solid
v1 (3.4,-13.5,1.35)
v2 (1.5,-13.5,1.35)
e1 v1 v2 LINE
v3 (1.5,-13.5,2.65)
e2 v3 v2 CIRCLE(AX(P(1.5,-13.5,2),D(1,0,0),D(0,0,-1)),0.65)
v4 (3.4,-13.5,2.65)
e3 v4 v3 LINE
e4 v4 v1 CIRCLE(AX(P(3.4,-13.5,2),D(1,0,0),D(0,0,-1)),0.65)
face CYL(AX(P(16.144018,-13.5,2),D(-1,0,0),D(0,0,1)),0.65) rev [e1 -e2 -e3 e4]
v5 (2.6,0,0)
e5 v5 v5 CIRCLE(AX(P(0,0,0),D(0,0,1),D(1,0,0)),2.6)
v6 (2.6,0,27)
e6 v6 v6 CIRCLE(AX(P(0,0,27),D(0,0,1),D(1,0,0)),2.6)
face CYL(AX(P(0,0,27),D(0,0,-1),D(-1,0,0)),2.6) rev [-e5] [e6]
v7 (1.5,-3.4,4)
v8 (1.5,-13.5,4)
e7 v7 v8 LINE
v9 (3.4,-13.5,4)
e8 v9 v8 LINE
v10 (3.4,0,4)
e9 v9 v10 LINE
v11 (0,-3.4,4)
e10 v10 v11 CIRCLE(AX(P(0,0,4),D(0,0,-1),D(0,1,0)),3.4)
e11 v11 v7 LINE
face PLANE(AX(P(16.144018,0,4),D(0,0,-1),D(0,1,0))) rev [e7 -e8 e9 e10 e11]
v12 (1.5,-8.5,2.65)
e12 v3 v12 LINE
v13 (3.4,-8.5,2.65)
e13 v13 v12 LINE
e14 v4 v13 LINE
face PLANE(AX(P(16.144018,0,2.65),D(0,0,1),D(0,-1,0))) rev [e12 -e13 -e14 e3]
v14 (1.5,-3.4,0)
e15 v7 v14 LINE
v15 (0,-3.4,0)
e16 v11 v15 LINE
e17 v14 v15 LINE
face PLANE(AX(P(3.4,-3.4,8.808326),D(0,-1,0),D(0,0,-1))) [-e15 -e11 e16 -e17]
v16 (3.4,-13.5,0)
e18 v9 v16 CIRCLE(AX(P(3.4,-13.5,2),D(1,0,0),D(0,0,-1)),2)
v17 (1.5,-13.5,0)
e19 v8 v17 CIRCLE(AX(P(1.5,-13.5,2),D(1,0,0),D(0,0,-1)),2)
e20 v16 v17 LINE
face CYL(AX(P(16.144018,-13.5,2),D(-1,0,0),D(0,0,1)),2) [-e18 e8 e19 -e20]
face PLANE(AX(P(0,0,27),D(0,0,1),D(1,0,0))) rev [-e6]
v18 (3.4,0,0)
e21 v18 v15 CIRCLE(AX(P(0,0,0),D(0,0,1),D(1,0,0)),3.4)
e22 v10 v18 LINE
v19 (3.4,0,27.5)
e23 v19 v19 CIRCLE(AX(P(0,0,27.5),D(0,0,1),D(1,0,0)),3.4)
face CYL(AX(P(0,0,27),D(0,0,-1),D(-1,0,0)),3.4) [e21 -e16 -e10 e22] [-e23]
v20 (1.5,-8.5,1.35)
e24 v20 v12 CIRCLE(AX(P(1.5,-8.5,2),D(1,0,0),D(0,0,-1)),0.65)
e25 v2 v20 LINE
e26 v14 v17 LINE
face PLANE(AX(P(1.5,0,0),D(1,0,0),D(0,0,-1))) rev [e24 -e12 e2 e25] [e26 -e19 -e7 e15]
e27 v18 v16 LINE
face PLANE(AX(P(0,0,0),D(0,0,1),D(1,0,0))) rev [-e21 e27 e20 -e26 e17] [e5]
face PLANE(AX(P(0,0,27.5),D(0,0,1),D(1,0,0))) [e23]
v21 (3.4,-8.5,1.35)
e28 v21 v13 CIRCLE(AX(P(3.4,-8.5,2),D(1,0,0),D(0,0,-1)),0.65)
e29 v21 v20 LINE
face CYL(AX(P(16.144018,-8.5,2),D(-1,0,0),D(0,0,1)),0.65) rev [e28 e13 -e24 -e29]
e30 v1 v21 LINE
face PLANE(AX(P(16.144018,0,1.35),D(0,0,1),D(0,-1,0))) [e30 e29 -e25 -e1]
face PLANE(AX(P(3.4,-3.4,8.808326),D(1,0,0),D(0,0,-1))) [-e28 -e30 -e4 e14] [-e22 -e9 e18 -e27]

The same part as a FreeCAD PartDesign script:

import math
import FreeCAD as App
import Part
import Sketcher
from FreeCAD import Vector
Q = App.Units.Quantity

doc = App.newDocument("Part")
params = doc.addObject("Spreadsheet::Sheet", "Params")
for row, (alias, value) in enumerate([
    ("sketch1_diameter", "6.8 mm"),
    ("sketch1_diameter2", "5.2 mm"),
    ("pad1_length", "27 mm"),
    ("sketch2_diameter", "6.8 mm"),
    ("pad2_length", "0.5 mm"),
    ("sketch3_radius", "2 mm"),
    ("sketch3_width", "5 mm"),
    ("sketch3_radius2", "0.65 mm"),
    ("sketch3_width2", "10.1 mm"),
    ("pad3_length", "1.9 mm"),
    ("sketch4_radius", "3.4 mm"),
    ("pad4_length", "4 mm"),
], start=1):
    params.set(f"A{row}", alias)
    params.set(f"B{row}", "=" + value)
    params.setAlias(f"B{row}", alias)

body = doc.addObject("PartDesign::Body", "Body")

# Sketch on XY plane
sketch1 = body.newObject("Sketcher::SketchObject", "Sketch")
sketch1.AttachmentSupport = (doc.getObject("XY_Plane"), [""])
sketch1.MapMode = "FlatFace"
sketch1.addGeometry([
    Part.Circle(Vector(0, 0, 0), Vector(0, 0, 1), 3.4),
    Part.Circle(Vector(0, 0, 0), Vector(0, 0, 1), 2.6),
], False)
sketch1.addConstraint([
    Sketcher.Constraint("Coincident", 0, 3, -1, 1),
    Sketcher.Constraint("Coincident", 1, 3, -1, 1),
    Sketcher.Constraint("Diameter", 0, Q("6.8 mm")),
    Sketcher.Constraint("Diameter", 1, Q("5.2 mm")),
])
sketch1.setExpression("Constraints[2]", "Params.sketch1_diameter")
sketch1.setExpression("Constraints[3]", "Params.sketch1_diameter2")
pad1 = body.newObject("PartDesign::Pad", "Pad")
pad1.Profile = sketch1
pad1.setExpression("Length", "Params.pad1_length")

# Sketch on XY plane
sketch2 = body.newObject("Sketcher::SketchObject", "Sketch001")
sketch2.AttachmentSupport = (doc.getObject("XY_Plane"), [""])
sketch2.MapMode = "FlatFace"
sketch2.AttachmentOffset = App.Placement(Vector(0, 0, 27), App.Rotation())
sketch2.addGeometry(Part.Circle(Vector(0, 0, 0), Vector(0, 0, 1), 3.4), False)
sketch2.addConstraint([
    Sketcher.Constraint("Coincident", 0, 3, -1, 1),
    Sketcher.Constraint("Diameter", 0, Q("6.8 mm")),
])
sketch2.setExpression("Constraints[1]", "Params.sketch2_diameter")
pad2 = body.newObject("PartDesign::Pad", "Pad001")
pad2.Profile = sketch2
pad2.setExpression("Length", "Params.pad2_length")
body2 = doc.addObject("PartDesign::Body", "Body001")

# Sketch on YZ plane
sketch3 = body2.newObject("Sketcher::SketchObject", "Sketch002")
sketch3.AttachmentSupport = (doc.getObject("YZ_Plane001"), [""])
sketch3.MapMode = "FlatFace"
sketch3.AttachmentOffset = App.Placement(Vector(0, 0, 1.5), App.Rotation())
sketch3.addGeometry([
    Part.LineSegment(Vector(-3.4, 4, 0), Vector(-13.5, 4, 0)),  # 0
    Part.ArcOfCircle(Part.Circle(Vector(-13.5, 2, 0), Vector(0, 0, 1), 2), math.radians(90), math.radians(270)),  # 1
    Part.LineSegment(Vector(-13.5, 0, 0), Vector(-3.4, 0, 0)),  # 2
    Part.LineSegment(Vector(-3.4, 0, 0), Vector(-3.4, 4, 0)),  # 3
    Part.ArcOfCircle(Part.Circle(Vector(-8.5, 2, 0), Vector(0, 0, 1), 0.65), math.radians(-90), math.radians(90)),  # 4
    Part.LineSegment(Vector(-8.5, 1.35, 0), Vector(-13.5, 1.35, 0)),  # 5
    Part.ArcOfCircle(Part.Circle(Vector(-13.5, 2, 0), Vector(0, 0, 1), 0.65), math.radians(90), math.radians(270)),  # 6
    Part.LineSegment(Vector(-13.5, 2.65, 0), Vector(-8.5, 2.65, 0)),  # 7
], False)
sketch3.addConstraint([
    Sketcher.Constraint("Tangent", 0, 2, 1, 1),
    Sketcher.Constraint("Tangent", 1, 2, 2, 1),
    Sketcher.Constraint("Coincident", 2, 2, 3, 1),
    Sketcher.Constraint("Coincident", 3, 2, 0, 1),
    Sketcher.Constraint("Tangent", 4, 1, 5, 1),
    Sketcher.Constraint("Tangent", 5, 2, 6, 2),
    Sketcher.Constraint("Tangent", 6, 1, 7, 1),
    Sketcher.Constraint("Tangent", 7, 2, 4, 2),
    Sketcher.Constraint("Horizontal", 0),
    Sketcher.Constraint("Horizontal", 2),
    Sketcher.Constraint("Vertical", 3),
    Sketcher.Constraint("Horizontal", 5),
    Sketcher.Constraint("Horizontal", 7),
    Sketcher.Constraint("Coincident", 6, 3, 1, 3),
    Sketcher.Constraint("PointOnObject", 1, 2, -1),
    Sketcher.Constraint("Radius", 1, Q("2 mm")),
    Sketcher.Constraint("DistanceX", 5, 2, 5, 1, Q("5 mm")),
    Sketcher.Constraint("Radius", 4, Q("0.65 mm")),
    Sketcher.Constraint("DistanceX", 0, 2, 0, 1, Q("10.1 mm")),
    Sketcher.Constraint("DistanceX", 1, 3, -1, 1, Q("13.5 mm")),
])
sketch3.setExpression("Constraints[15]", "Params.sketch3_radius")
sketch3.setExpression("Constraints[16]", "Params.sketch3_width")
sketch3.setExpression("Constraints[17]", "Params.sketch3_radius2")
sketch3.setExpression("Constraints[18]", "Params.sketch3_width2")
pad3 = body2.newObject("PartDesign::Pad", "Pad002")
pad3.Profile = sketch3
pad3.setExpression("Length", "Params.pad3_length")
body.AllowCompound = True
doc.recompute()

boolean = body.newObject("PartDesign::Boolean", "Boolean")
boolean.Type = "Fuse"
boolean.addObjects([body2])

# Sketch on XY plane
sketch4 = body.newObject("Sketcher::SketchObject", "Sketch003")
sketch4.AttachmentSupport = (doc.getObject("XY_Plane"), [""])
sketch4.MapMode = "FlatFace"
sketch4.addGeometry([
    Part.LineSegment(Vector(3.4, -3.4, 0), Vector(0, -3.4, 0)),
    Part.ArcOfCircle(Part.Circle(Vector(0, 0, 0), Vector(0, 0, 1), 3.4), math.radians(-90), math.radians(0)),
    Part.LineSegment(Vector(3.4, 0, 0), Vector(3.4, -3.4, 0)),
], False)
sketch4.addConstraint([
    Sketcher.Constraint("Tangent", 0, 2, 1, 1),
    Sketcher.Constraint("Tangent", 1, 2, 2, 1),
    Sketcher.Constraint("Coincident", 2, 2, 0, 1),
    Sketcher.Constraint("Horizontal", 0),
    Sketcher.Constraint("Vertical", 2),
    Sketcher.Constraint("Coincident", 1, 3, -1, 1),
    Sketcher.Constraint("Radius", 1, Q("3.4 mm")),
])
sketch4.setExpression("Constraints[6]", "Params.sketch4_radius")
pad4 = body.newObject("PartDesign::Pad", "Pad003")
pad4.Profile = sketch4
pad4.setExpression("Length", "Params.pad4_length")

doc.recompute()
